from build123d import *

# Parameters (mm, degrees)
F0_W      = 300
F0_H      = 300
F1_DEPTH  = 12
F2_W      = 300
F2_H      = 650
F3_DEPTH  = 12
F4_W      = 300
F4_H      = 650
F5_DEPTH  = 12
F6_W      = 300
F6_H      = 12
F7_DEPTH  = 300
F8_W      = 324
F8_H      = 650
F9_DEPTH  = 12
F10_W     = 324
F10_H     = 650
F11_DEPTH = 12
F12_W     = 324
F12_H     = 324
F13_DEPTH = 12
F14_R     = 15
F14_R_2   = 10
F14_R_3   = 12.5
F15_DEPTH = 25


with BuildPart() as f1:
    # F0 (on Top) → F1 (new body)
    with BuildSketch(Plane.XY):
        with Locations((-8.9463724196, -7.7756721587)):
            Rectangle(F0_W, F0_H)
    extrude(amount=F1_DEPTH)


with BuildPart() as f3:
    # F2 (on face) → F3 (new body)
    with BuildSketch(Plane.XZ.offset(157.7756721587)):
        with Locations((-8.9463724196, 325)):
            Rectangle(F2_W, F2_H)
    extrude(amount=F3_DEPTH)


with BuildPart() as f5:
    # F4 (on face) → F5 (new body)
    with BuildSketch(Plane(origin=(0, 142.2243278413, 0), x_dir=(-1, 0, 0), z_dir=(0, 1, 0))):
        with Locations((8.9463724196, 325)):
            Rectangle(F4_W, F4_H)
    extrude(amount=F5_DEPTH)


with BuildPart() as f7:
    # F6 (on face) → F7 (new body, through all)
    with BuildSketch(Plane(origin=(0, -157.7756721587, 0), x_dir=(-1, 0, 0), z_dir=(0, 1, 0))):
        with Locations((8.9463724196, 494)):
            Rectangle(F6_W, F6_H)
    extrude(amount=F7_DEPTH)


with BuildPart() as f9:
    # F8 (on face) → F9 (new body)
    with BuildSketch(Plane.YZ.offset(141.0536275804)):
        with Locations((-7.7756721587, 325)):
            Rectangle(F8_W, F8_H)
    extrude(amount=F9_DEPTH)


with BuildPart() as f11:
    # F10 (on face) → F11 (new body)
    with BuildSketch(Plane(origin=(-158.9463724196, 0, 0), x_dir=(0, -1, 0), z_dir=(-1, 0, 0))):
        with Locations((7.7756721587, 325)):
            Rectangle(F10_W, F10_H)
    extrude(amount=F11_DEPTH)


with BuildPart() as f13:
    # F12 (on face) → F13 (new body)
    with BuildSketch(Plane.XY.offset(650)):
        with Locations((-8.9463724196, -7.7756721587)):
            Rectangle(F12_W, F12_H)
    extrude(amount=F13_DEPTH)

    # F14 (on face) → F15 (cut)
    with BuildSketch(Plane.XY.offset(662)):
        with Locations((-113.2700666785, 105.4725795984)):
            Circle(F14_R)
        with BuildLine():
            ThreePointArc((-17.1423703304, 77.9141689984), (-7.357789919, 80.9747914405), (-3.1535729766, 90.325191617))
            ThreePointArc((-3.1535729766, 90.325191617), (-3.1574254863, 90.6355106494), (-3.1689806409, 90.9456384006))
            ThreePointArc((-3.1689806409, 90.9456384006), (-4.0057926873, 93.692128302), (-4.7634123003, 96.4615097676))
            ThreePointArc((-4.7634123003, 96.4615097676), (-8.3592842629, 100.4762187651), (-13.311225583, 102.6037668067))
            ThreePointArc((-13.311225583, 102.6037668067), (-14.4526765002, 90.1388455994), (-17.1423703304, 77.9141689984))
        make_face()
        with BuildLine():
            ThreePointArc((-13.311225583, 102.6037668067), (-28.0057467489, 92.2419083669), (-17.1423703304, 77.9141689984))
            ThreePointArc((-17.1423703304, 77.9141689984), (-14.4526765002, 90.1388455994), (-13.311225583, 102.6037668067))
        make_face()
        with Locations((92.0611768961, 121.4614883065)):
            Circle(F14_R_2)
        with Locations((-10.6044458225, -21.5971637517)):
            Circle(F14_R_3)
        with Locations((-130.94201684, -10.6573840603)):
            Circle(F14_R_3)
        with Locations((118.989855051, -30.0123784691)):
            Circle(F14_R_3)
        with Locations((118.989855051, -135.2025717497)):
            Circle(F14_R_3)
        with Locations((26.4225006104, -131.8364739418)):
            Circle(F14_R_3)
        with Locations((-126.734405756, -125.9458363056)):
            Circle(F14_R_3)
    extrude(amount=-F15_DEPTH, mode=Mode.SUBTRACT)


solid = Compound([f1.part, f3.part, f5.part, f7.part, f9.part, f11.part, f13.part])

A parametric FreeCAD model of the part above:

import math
import FreeCAD as App
import Part
import Sketcher
Q = App.Units.Quantity

doc = App.newDocument("Part")
body = doc.addObject("PartDesign::Body", "Body")

sketch1 = doc.addObject("Sketcher::SketchObject", "Sketch")
body.addObject(sketch1)
sketch1.AttachmentSupport = (doc.XY_Plane, [""])
sketch1.MapMode = "FlatFace"
sketch1.addGeometry(Part.LineSegment(App.Vector(-159, 142, 0), App.Vector(-159, -158, 0)), False)
sketch1.addGeometry(Part.LineSegment(App.Vector(-159, -158, 0), App.Vector(141, -158, 0)), False)
sketch1.addGeometry(Part.LineSegment(App.Vector(141, -158, 0), App.Vector(141, 142, 0)), False)
sketch1.addGeometry(Part.LineSegment(App.Vector(141, 142, 0), App.Vector(-159, 142, 0)), False)
sketch1.addConstraint(Sketcher.Constraint("Coincident", 0, 2, 1, 1))
sketch1.addConstraint(Sketcher.Constraint("Coincident", 1, 2, 2, 1))
sketch1.addConstraint(Sketcher.Constraint("Coincident", 2, 2, 3, 1))
sketch1.addConstraint(Sketcher.Constraint("Coincident", 3, 2, 0, 1))
sketch1.addConstraint(Sketcher.Constraint("Vertical", 0))
sketch1.addConstraint(Sketcher.Constraint("Horizontal", 1))
sketch1.addConstraint(Sketcher.Constraint("Vertical", 2))
sketch1.addConstraint(Sketcher.Constraint("Horizontal", 3))
sketch1.addConstraint(Sketcher.Constraint("Equal", 3, 0))
sketch1.addConstraint(Sketcher.Constraint("DistanceX", 1, 1, 1, 2, Q("300 mm")))
sketch1.addConstraint(Sketcher.Constraint("DistanceX", 0, 2, -1, 1, Q("158.946372 mm")))
sketch1.addConstraint(Sketcher.Constraint("DistanceY", 0, 2, -1, 1, Q("157.775672 mm")))
pad1 = doc.addObject("PartDesign::Pad", "Pad")
body.addObject(pad1)
pad1.Profile = sketch1
pad1.Length = 12
body2 = doc.addObject("PartDesign::Body", "Body001")

sketch2 = doc.addObject("Sketcher::SketchObject", "Sketch001")
body2.addObject(sketch2)
sketch2.AttachmentSupport = (doc.getObject("XZ_Plane001"), [""])
sketch2.MapMode = "FlatFace"
sketch2.AttachmentOffset = App.Placement(App.Vector(0, 0, 157.775672), App.Rotation())
sketch2.addGeometry(Part.LineSegment(App.Vector(-159, 650, 0), App.Vector(-159, 0, 0)), False)
sketch2.addGeometry(Part.LineSegment(App.Vector(-159, 0, 0), App.Vector(141, 0, 0)), False)
sketch2.addGeometry(Part.LineSegment(App.Vector(141, 0, 0), App.Vector(141, 650, 0)), False)
sketch2.addGeometry(Part.LineSegment(App.Vector(141, 650, 0), App.Vector(-159, 650, 0)), False)
sketch2.addConstraint(Sketcher.Constraint("Coincident", 0, 2, 1, 1))
sketch2.addConstraint(Sketcher.Constraint("Coincident", 1, 2, 2, 1))
sketch2.addConstraint(Sketcher.Constraint("Coincident", 2, 2, 3, 1))
sketch2.addConstraint(Sketcher.Constraint("Coincident", 3, 2, 0, 1))
sketch2.addConstraint(Sketcher.Constraint("Vertical", 0))
sketch2.addConstraint(Sketcher.Constraint("Horizontal", 1))
sketch2.addConstraint(Sketcher.Constraint("Vertical", 2))
sketch2.addConstraint(Sketcher.Constraint("Horizontal", 3))
sketch2.addConstraint(Sketcher.Constraint("PointOnObject", 0, 2, -1))
sketch2.addConstraint(Sketcher.Constraint("DistanceX", 1, 1, 1, 2, Q("300 mm")))
sketch2.addConstraint(Sketcher.Constraint("DistanceY", 0, 2, 0, 1, Q("650 mm")))
sketch2.addConstraint(Sketcher.Constraint("DistanceX", 0, 2, -1, 1, Q("158.946372 mm")))
pad2 = doc.addObject("PartDesign::Pad", "Pad001")
body2.addObject(pad2)
pad2.Profile = sketch2
pad2.Length = 12
body3 = doc.addObject("PartDesign::Body", "Body002")

sketch3 = doc.addObject("Sketcher::SketchObject", "Sketch002")
body3.addObject(sketch3)
sketch3.AttachmentSupport = (doc.getObject("XZ_Plane002"), [""])
sketch3.MapMode = "FlatFace"
sketch3.AttachmentOffset = App.Placement(App.Vector(0, 0, -142.224328), App.Rotation())
sketch3.addGeometry(Part.LineSegment(App.Vector(141, 650, 0), App.Vector(141, 0, 0)), False)
sketch3.addGeometry(Part.LineSegment(App.Vector(141, 0, 0), App.Vector(-159, 0, 0)), False)
sketch3.addGeometry(Part.LineSegment(App.Vector(-159, 0, 0), App.Vector(-159, 650, 0)), False)
sketch3.addGeometry(Part.LineSegment(App.Vector(-159, 650, 0), App.Vector(141, 650, 0)), False)
sketch3.addConstraint(Sketcher.Constraint("Coincident", 0, 2, 1, 1))
sketch3.addConstraint(Sketcher.Constraint("Coincident", 1, 2, 2, 1))
sketch3.addConstraint(Sketcher.Constraint("Coincident", 2, 2, 3, 1))
sketch3.addConstraint(Sketcher.Constraint("Coincident", 3, 2, 0, 1))
sketch3.addConstraint(Sketcher.Constraint("Vertical", 0))
sketch3.addConstraint(Sketcher.Constraint("Horizontal", 1))
sketch3.addConstraint(Sketcher.Constraint("Vertical", 2))
sketch3.addConstraint(Sketcher.Constraint("Horizontal", 3))
sketch3.addConstraint(Sketcher.Constraint("PointOnObject", 0, 2, -1))
sketch3.addConstraint(Sketcher.Constraint("DistanceX", 1, 2, 1, 1, Q("300 mm")))
sketch3.addConstraint(Sketcher.Constraint("DistanceY", 0, 2, 0, 1, Q("650 mm")))
sketch3.addConstraint(Sketcher.Constraint("DistanceX", -1, 1, 0, 2, Q("141.053628 mm")))
pad3 = doc.addObject("PartDesign::Pad", "Pad002")
body3.addObject(pad3)
pad3.Profile = sketch3
pad3.Length = 12
pad3.Reversed = True
body4 = doc.addObject("PartDesign::Body", "Body003")

sketch4 = doc.addObject("Sketcher::SketchObject", "Sketch003")
body4.addObject(sketch4)
sketch4.AttachmentSupport = (doc.getObject("XZ_Plane003"), [""])
sketch4.MapMode = "FlatFace"
sketch4.AttachmentOffset = App.Placement(App.Vector(0, 0, 157.775672), App.Rotation())
sketch4.addGeometry(Part.LineSegment(App.Vector(141, 500, 0), App.Vector(141, 488, 0)), False)
sketch4.addGeometry(Part.LineSegment(App.Vector(141, 488, 0), App.Vector(-159, 488, 0)), False)
sketch4.addGeometry(Part.LineSegment(App.Vector(-159, 488, 0), App.Vector(-159, 500, 0)), False)
sketch4.addGeometry(Part.LineSegment(App.Vector(-159, 500, 0), App.Vector(141, 500, 0)), False)
sketch4.addConstraint(Sketcher.Constraint("Coincident", 0, 2, 1, 1))
sketch4.addConstraint(Sketcher.Constraint("Coincident", 1, 2, 2, 1))
sketch4.addConstraint(Sketcher.Constraint("Coincident", 2, 2, 3, 1))
sketch4.addConstraint(Sketcher.Constraint("Coincident", 3, 2, 0, 1))
sketch4.addConstraint(Sketcher.Constraint("Vertical", 0))
sketch4.addConstraint(Sketcher.Constraint("Horizontal", 1))
sketch4.addConstraint(Sketcher.Constraint("Vertical", 2))
sketch4.addConstraint(Sketcher.Constraint("Horizontal", 3))
sketch4.addConstraint(Sketcher.Constraint("DistanceX", 1, 2, 1, 1, Q("300 mm")))
sketch4.addConstraint(Sketcher.Constraint("DistanceY", 0, 2, 0, 1, Q("12 mm")))
sketch4.addConstraint(Sketcher.Constraint("DistanceY", -1, 1, 0, 2, Q("488 mm")))
sketch4.addConstraint(Sketcher.Constraint("DistanceX", -1, 1, 0, 2, Q("141.053628 mm")))
pad4 = doc.addObject("PartDesign::Pad", "Pad003")
body4.addObject(pad4)
pad4.Profile = sketch4
pad4.Length = 300
pad4.Reversed = True
body5 = doc.addObject("PartDesign::Body", "Body004")

sketch5 = doc.addObject("Sketcher::SketchObject", "Sketch004")
body5.addObject(sketch5)
sketch5.AttachmentSupport = (doc.getObject("YZ_Plane004"), [""])
sketch5.MapMode = "FlatFace"
sketch5.AttachmentOffset = App.Placement(App.Vector(0, 0, 141.053628), App.Rotation())
sketch5.addGeometry(Part.LineSegment(App.Vector(-170, 650, 0), App.Vector(-170, 0, 0)), False)
sketch5.addGeometry(Part.LineSegment(App.Vector(-170, 0, 0), App.Vector(154, 0, 0)), False)
sketch5.addGeometry(Part.LineSegment(App.Vector(154, 0, 0), App.Vector(154, 650, 0)), False)
sketch5.addGeometry(Part.LineSegment(App.Vector(154, 650, 0), App.Vector(-170, 650, 0)), False)
sketch5.addConstraint(Sketcher.Constraint("Coincident", 0, 2, 1, 1))
sketch5.addConstraint(Sketcher.Constraint("Coincident", 1, 2, 2, 1))
sketch5.addConstraint(Sketcher.Constraint("Coincident", 2, 2, 3, 1))
sketch5.addConstraint(Sketcher.Constraint("Coincident", 3, 2, 0, 1))
sketch5.addConstraint(Sketcher.Constraint("Vertical", 0))
sketch5.addConstraint(Sketcher.Constraint("Horizontal", 1))
sketch5.addConstraint(Sketcher.Constraint("Vertical", 2))
sketch5.addConstraint(Sketcher.Constraint("Horizontal", 3))
sketch5.addConstraint(Sketcher.Constraint("PointOnObject", 0, 2, -1))
sketch5.addConstraint(Sketcher.Constraint("DistanceX", 1, 1, 1, 2, Q("324 mm")))
sketch5.addConstraint(Sketcher.Constraint("DistanceY", 0, 2, 0, 1, Q("650 mm")))
sketch5.addConstraint(Sketcher.Constraint("DistanceX", 0, 2, -1, 1, Q("169.775672 mm")))
pad5 = doc.addObject("PartDesign::Pad", "Pad004")
body5.addObject(pad5)
pad5.Profile = sketch5
pad5.Length = 12
body6 = doc.addObject("PartDesign::Body", "Body005")

sketch6 = doc.addObject("Sketcher::SketchObject", "Sketch005")
body6.addObject(sketch6)
sketch6.AttachmentSupport = (doc.getObject("YZ_Plane005"), [""])
sketch6.MapMode = "FlatFace"
sketch6.AttachmentOffset = App.Placement(App.Vector(0, 0, -158.946372), App.Rotation())
sketch6.addGeometry(Part.LineSegment(App.Vector(154, 650, 0), App.Vector(154, 0, 0)), False)
sketch6.addGeometry(Part.LineSegment(App.Vector(154, 0, 0), App.Vector(-170, 0, 0)), False)
sketch6.addGeometry(Part.LineSegment(App.Vector(-170, 0, 0), App.Vector(-170, 650, 0)), False)
sketch6.addGeometry(Part.LineSegment(App.Vector(-170, 650, 0), App.Vector(154, 650, 0)), False)
sketch6.addConstraint(Sketcher.Constraint("Coincident", 0, 2, 1, 1))
sketch6.addConstraint(Sketcher.Constraint("Coincident", 1, 2, 2, 1))
sketch6.addConstraint(Sketcher.Constraint("Coincident", 2, 2, 3, 1))
sketch6.addConstraint(Sketcher.Constraint("Coincident", 3, 2, 0, 1))
sketch6.addConstraint(Sketcher.Constraint("Vertical", 0))
sketch6.addConstraint(Sketcher.Constraint("Horizontal", 1))
sketch6.addConstraint(Sketcher.Constraint("Vertical", 2))
sketch6.addConstraint(Sketcher.Constraint("Horizontal", 3))
sketch6.addConstraint(Sketcher.Constraint("PointOnObject", 0, 2, -1))
sketch6.addConstraint(Sketcher.Constraint("DistanceX", 1, 2, 1, 1, Q("324 mm")))
sketch6.addConstraint(Sketcher.Constraint("DistanceY", 0, 2, 0, 1, Q("650 mm")))
sketch6.addConstraint(Sketcher.Constraint("DistanceX", -1, 1, 0, 2, Q("154.224328 mm")))
pad6 = doc.addObject("PartDesign::Pad", "Pad005")
body6.addObject(pad6)
pad6.Profile = sketch6
pad6.Length = 12
pad6.Reversed = True
body7 = doc.addObject("PartDesign::Body", "Body006")

sketch7 = doc.addObject("Sketcher::SketchObject", "Sketch006")
body7.addObject(sketch7)
sketch7.AttachmentSupport = (doc.getObject("XY_Plane006"), [""])
sketch7.MapMode = "FlatFace"
sketch7.AttachmentOffset = App.Placement(App.Vector(0, 0, 650), App.Rotation())
sketch7.addGeometry(Part.LineSegment(App.Vector(-171, 154, 0), App.Vector(-171, -170, 0)), False)
sketch7.addGeometry(Part.LineSegment(App.Vector(-171, -170, 0), App.Vector(153, -170, 0)), False)
sketch7.addGeometry(Part.LineSegment(App.Vector(153, -170, 0), App.Vector(153, 154, 0)), False)
sketch7.addGeometry(Part.LineSegment(App.Vector(153, 154, 0), App.Vector(-171, 154, 0)), False)
sketch7.addConstraint(Sketcher.Constraint("Coincident", 0, 2, 1, 1))
sketch7.addConstraint(Sketcher.Constraint("Coincident", 1, 2, 2, 1))
sketch7.addConstraint(Sketcher.Constraint("Coincident", 2, 2, 3, 1))
sketch7.addConstraint(Sketcher.Constraint("Coincident", 3, 2, 0, 1))
sketch7.addConstraint(Sketcher.Constraint("Vertical", 0))
sketch7.addConstraint(Sketcher.Constraint("Horizontal", 1))
sketch7.addConstraint(Sketcher.Constraint("Vertical", 2))
sketch7.addConstraint(Sketcher.Constraint("Horizontal", 3))
sketch7.addConstraint(Sketcher.Constraint("Equal", 3, 0))
sketch7.addConstraint(Sketcher.Constraint("DistanceX", 1, 1, 1, 2, Q("324 mm")))
sketch7.addConstraint(Sketcher.Constraint("DistanceX", 0, 2, -1, 1, Q("170.946372 mm")))
sketch7.addConstraint(Sketcher.Constraint("DistanceY", 0, 2, -1, 1, Q("169.775672 mm")))
pad7 = doc.addObject("PartDesign::Pad", "Pad006")
body7.addObject(pad7)
pad7.Profile = sketch7
pad7.Length = 12

sketch8 = doc.addObject("Sketcher::SketchObject", "Sketch007")
body7.addObject(sketch8)
sketch8.AttachmentSupport = (doc.getObject("XY_Plane006"), [""])
sketch8.MapMode = "FlatFace"
sketch8.AttachmentOffset = App.Placement(App.Vector(0, 0, 662), App.Rotation())
sketch8.addGeometry(Part.Circle(App.Vector(-113.3, 105.5, 0), App.Vector(0, 0, 1), 15), False)
sketch8.addGeometry(Part.ArcOfCircle(Part.Circle(App.Vector(-15.7, 90.3, 0), App.Vector(0, 0, 1), 12.5), math.radians(-97), math.radians(0)), False)
sketch8.addGeometry(Part.ArcOfCircle(Part.Circle(App.Vector(-15.7, 90.3, 0), App.Vector(0, 0, 1), 12.5), math.radians(0), math.radians(2.85)), False)
sketch8.addGeometry(Part.ArcOfCircle(Part.Circle(App.Vector(92.1, 121.5, 0), App.Vector(0, 0, 1), 100), math.radians(-165.52), math.radians(-162.23)), False)
sketch8.addGeometry(Part.ArcOfCircle(Part.Circle(App.Vector(-15.7, 90.3, 0), App.Vector(0, 0, 1), 12.5), math.radians(29), math.radians(79)), False)
sketch8.addGeometry(Part.ArcOfCircle(Part.Circle(App.Vector(-15.7, 90.3, 0), App.Vector(0, 0, 1), 12.5), math.radians(79), math.radians(263)), False)
sketch8.addGeometry(Part.Circle(App.Vector(92.1, 121.5, 0), App.Vector(0, 0, 1), 10), False)
sketch8.addGeometry(Part.Circle(App.Vector(-10.6, -21.6, 0), App.Vector(0, 0, 1), 12.5), False)
sketch8.addGeometry(Part.Circle(App.Vector(-130.9, -10.7, 0), App.Vector(0, 0, 1), 12.5), False)
sketch8.addGeometry(Part.Circle(App.Vector(119, -30, 0), App.Vector(0, 0, 1), 12.5), False)
sketch8.addGeometry(Part.Circle(App.Vector(119, -135.2, 0), App.Vector(0, 0, 1), 12.5), False)
sketch8.addGeometry(Part.Circle(App.Vector(26.4, -131.8, 0), App.Vector(0, 0, 1), 12.5), False)
sketch8.addGeometry(Part.Circle(App.Vector(-126.7, -125.9, 0), App.Vector(0, 0, 1), 12.5), False)
sketch8.addConstraint(Sketcher.Constraint("Tangent", 1, 2, 2, 1))
sketch8.addConstraint(Sketcher.Constraint("Coincident", 2, 2, 3, 2))
sketch8.addConstraint(Sketcher.Constraint("Coincident", 3, 1, 4, 1))
sketch8.addConstraint(Sketcher.Constraint("Tangent", 4, 2, 5, 1))
sketch8.addConstraint(Sketcher.Constraint("Tangent", 5, 2, 1, 1))
sketch8.addConstraint(Sketcher.Constraint("Coincident", 4, 3, 1, 3))
sketch8.addConstraint(Sketcher.Constraint("Coincident", 6, 3, 3, 3))
sketch8.addConstraint(Sketcher.Constraint("Equal", 1, 2))
sketch8.addConstraint(Sketcher.Constraint("Equal", 5, 7))
sketch8.addConstraint(Sketcher.Constraint("Equal", 7, 8))
sketch8.addConstraint(Sketcher.Constraint("Equal", 8, 9))
sketch8.addConstraint(Sketcher.Constraint("Equal", 9, 10))
sketch8.addConstraint(Sketcher.Constraint("Equal", 10, 11))
sketch8.addConstraint(Sketcher.Constraint("Equal", 11, 12))
sketch8.addConstraint(Sketcher.Constraint("Horizontal", 5, 3, 1, 2))
sketch8.addConstraint(Sketcher.Constraint("Vertical", 9, 3, 10, 3))
sketch8.addConstraint(Sketcher.Constraint("Diameter", 0, Q("30 mm")))
sketch8.addConstraint(Sketcher.Constraint("Diameter", 6, Q("20 mm")))
sketch8.addConstraint(Sketcher.Constraint("Diameter", 7, Q("25 mm")))
sketch8.addConstraint(Sketcher.Constraint("Radius", 3, Q("100 mm")))
sketch8.addConstraint(Sketcher.Constraint("DistanceX", -1, 1, 11, 3, Q("26.422501 mm")))
sketch8.addConstraint(Sketcher.Constraint("DistanceX", 7, 3, 9, 3, Q("129.594301 mm")))
sketch8.addConstraint(Sketcher.Constraint("DistanceY", -1, 1, 0, 3, Q("105.47258 mm")))
sketch8.addConstraint(Sketcher.Constraint("DistanceY", -1, 1, 1, 3, Q("90.325192 mm")))
sketch8.addConstraint(Sketcher.Constraint("DistanceY", -1, 1, 3, 3, Q("121.461488 mm")))
sketch8.addConstraint(Sketcher.Constraint("DistanceY", 9, 3, -1, 1, Q("30.012378 mm")))
sketch8.addConstraint(Sketcher.Constraint("DistanceY", 10, 3, -1, 1, Q("135.202572 mm")))
sketch8.addConstraint(Sketcher.Constraint("DistanceX", 2, 2, -1, 1, Q("3.168981 mm")))
sketch8.addConstraint(Sketcher.Constraint("DistanceY", -1, 1, 2, 2, Q("90.945638 mm")))
sketch8.addConstraint(Sketcher.Constraint("DistanceX", 5, 2, -1, 1, Q("17.14237 mm")))
sketch8.addConstraint(Sketcher.Constraint("DistanceX", 0, 3, 7, 3, Q("102.665621 mm")))
sketch8.addConstraint(Sketcher.Constraint("DistanceX", 8, 3, 0, 3, Q("17.67195 mm")))
sketch8.addConstraint(Sketcher.Constraint("DistanceY", 7, 3, 8, 3, Q("10.93978 mm")))
sketch8.addConstraint(Sketcher.Constraint("DistanceX", 6, 3, 9, 3, Q("26.928678 mm")))
sketch8.addConstraint(Sketcher.Constraint("DistanceY", 11, 3, 7, 3, Q("110.23931 mm")))
sketch8.addConstraint(Sketcher.Constraint("DistanceX", 8, 3, 12, 3, Q("4.207611 mm")))
sketch8.addConstraint(Sketcher.Constraint("DistanceY", 7, 3, -1, 1, Q("21.597164 mm")))
sketch8.addConstraint(Sketcher.Constraint("DistanceY", 12, 3, -1, 1, Q("125.945836 mm")))
sketch8.addConstraint(Sketcher.Constraint("DistanceX", 4, 2, -1, 1, Q("13.311226 mm")))
pocket1 = doc.addObject("PartDesign::Pocket", "Pocket")
body7.addObject(pocket1)
pocket1.Profile = sketch8
pocket1.Length = 25

doc.recompute()
